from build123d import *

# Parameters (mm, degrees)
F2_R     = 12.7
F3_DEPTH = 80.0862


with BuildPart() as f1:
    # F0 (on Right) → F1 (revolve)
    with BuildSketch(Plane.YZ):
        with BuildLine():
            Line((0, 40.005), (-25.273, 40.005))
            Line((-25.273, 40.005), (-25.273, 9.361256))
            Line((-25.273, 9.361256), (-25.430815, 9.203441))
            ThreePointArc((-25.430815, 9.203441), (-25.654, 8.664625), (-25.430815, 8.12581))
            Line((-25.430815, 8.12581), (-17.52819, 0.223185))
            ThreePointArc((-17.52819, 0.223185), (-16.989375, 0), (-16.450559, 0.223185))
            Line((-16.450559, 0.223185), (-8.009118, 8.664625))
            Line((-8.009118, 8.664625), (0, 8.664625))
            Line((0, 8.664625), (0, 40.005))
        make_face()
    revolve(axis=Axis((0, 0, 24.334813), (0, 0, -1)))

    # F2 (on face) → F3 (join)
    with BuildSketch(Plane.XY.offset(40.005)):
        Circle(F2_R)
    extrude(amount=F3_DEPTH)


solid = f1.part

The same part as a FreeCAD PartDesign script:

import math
import FreeCAD as App
import Part
import Sketcher

V = App.Vector
Q = App.Units.Quantity

doc = App.newDocument("Part")
body = doc.addObject("PartDesign::Body", "Body")

sketch1 = body.newObject("Sketcher::SketchObject", "Sketch")
sketch1.AttachmentSupport = (doc.getObject("YZ_Plane"), [""])
sketch1.MapMode = "FlatFace"
sketch1.addGeometry([
    Part.LineSegment(V(0, 40.01, 0), V(-25.27, 40.01, 0)),
    Part.LineSegment(V(-25.27, 40.01, 0), V(-25.27, 9.36, 0)),
    Part.LineSegment(V(-25.27, 9.36, 0), V(-25.43, 9.2, 0)),
    Part.ArcOfCircle(Part.Circle(V(-24.89, 8.66, 0), V(0, 0, 1), 0.76), math.radians(135), math.radians(225)),
    Part.LineSegment(V(-25.43, 8.13, 0), V(-17.53, 0.22, 0)),
    Part.ArcOfCircle(Part.Circle(V(-16.99, 0.76, 0), V(0, 0, 1), 0.76), math.radians(-135), math.radians(-45)),
    Part.LineSegment(V(-16.45, 0.22, 0), V(-8.01, 8.66, 0)),
    Part.LineSegment(V(-8.01, 8.66, 0), V(0, 8.66, 0)),
    Part.LineSegment(V(0, 8.66, 0), V(0, 40.01, 0)),
], False)
sketch1.addConstraint([
    Sketcher.Constraint("Coincident", 0, 2, 1, 1),
    Sketcher.Constraint("Coincident", 1, 2, 2, 1),
    Sketcher.Constraint("Tangent", 2, 2, 3, 1),
    Sketcher.Constraint("Tangent", 3, 2, 4, 1),
    Sketcher.Constraint("Tangent", 4, 2, 5, 1),
    Sketcher.Constraint("Tangent", 5, 2, 6, 1),
    Sketcher.Constraint("Coincident", 6, 2, 7, 1),
    Sketcher.Constraint("Coincident", 7, 2, 8, 1),
    Sketcher.Constraint("Coincident", 8, 2, 0, 1),
    Sketcher.Constraint("Horizontal", 0),
    Sketcher.Constraint("Vertical", 1),
    Sketcher.Constraint("Horizontal", 7),
    Sketcher.Constraint("Vertical", 8),
    Sketcher.Constraint("Equal", 3, 5),
    Sketcher.Constraint("PointOnObject", 7, 2, -2),
    Sketcher.Constraint("Perpendicular", 2, 4),
    Sketcher.Constraint("Perpendicular", 4, 6),
    Sketcher.Constraint("Horizontal", 4, 2, 5, 2),
    Sketcher.Constraint("Horizontal", 3, 3, 6, 2),
    Sketcher.Constraint("Radius", 3, Q("0.03 in")),
    Sketcher.Constraint("Distance", 4, Q("0.44 in")),
    Sketcher.Constraint("DistanceX", 0, 2, 0, 1, Q("0.995 in")),
    Sketcher.Constraint("DistanceX", 3, 3, -1, 1, Q("0.98 in")),
    Sketcher.Constraint("DistanceY", -1, 1, 5, 3, Q("0.03 in")),
    Sketcher.Constraint("DistanceY", -1, 1, 0, 2, Q("1.575 in")),
])
revolution = body.newObject("PartDesign::Revolution", "Revolution")
revolution.Profile = sketch1
revolution.ReferenceAxis = (sketch1, ["V_Axis"])
revolution.Angle = 360

sketch2 = body.newObject("Sketcher::SketchObject", "Sketch001")
sketch2.AttachmentSupport = (doc.getObject("XY_Plane"), [""])
sketch2.MapMode = "FlatFace"
sketch2.AttachmentOffset = App.Placement(V(0, 0, 1.575 * 25.4), App.Rotation())
sketch2.addGeometry(Part.Circle(V(0, 0, 0), V(0, 0, 1), 13), False)
sketch2.addConstraint([
    Sketcher.Constraint("Coincident", 0, 3, -1, 1),
    Sketcher.Constraint("Diameter", 0, Q("1 in")),
])
pad1 = body.newObject("PartDesign::Pad", "Pad")
pad1.Profile = sketch2
pad1.Length = Q("3.153 in")

doc.recompute()
